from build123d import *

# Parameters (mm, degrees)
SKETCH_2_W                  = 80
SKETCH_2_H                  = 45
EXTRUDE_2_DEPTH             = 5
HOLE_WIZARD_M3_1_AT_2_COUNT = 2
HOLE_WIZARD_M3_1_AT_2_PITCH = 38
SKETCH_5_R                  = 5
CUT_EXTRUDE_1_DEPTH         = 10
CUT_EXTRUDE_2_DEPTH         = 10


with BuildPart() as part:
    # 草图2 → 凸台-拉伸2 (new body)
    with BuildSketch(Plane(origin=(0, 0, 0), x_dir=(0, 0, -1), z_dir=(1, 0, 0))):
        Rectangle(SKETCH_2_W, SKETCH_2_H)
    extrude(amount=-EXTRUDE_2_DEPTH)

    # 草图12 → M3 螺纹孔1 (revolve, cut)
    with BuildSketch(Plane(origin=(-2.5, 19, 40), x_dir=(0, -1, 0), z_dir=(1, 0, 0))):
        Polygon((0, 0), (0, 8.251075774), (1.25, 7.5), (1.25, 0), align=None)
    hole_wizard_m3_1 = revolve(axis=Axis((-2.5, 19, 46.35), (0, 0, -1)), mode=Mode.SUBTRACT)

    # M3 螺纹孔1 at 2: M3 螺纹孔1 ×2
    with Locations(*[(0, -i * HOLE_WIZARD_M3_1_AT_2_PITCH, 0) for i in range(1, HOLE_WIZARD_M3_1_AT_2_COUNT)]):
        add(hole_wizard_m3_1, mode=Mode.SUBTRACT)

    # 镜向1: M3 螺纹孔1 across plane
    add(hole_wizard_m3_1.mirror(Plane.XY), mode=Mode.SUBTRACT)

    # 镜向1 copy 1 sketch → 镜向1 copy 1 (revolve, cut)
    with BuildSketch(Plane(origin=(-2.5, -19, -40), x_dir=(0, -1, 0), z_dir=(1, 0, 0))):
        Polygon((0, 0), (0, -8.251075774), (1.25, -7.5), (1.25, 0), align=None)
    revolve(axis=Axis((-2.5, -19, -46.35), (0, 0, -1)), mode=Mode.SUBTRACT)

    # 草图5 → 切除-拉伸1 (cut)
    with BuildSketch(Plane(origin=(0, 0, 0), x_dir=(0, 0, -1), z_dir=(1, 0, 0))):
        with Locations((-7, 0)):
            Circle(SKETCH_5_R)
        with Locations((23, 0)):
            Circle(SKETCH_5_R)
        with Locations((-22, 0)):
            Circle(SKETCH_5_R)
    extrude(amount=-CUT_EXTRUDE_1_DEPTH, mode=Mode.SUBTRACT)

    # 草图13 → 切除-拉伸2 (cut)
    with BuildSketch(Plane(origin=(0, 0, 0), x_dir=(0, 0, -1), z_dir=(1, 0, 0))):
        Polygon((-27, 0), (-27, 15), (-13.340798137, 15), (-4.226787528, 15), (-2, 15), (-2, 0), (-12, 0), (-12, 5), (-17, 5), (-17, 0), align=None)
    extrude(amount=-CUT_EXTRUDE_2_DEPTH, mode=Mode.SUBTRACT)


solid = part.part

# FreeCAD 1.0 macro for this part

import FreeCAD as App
import Part
import Sketcher
from FreeCAD import Vector
Q = App.Units.Quantity

doc = App.newDocument("Part")
params = doc.addObject("Spreadsheet::Sheet", "Params")
for row, (alias, value) in enumerate([
    ("sketch1_width", "45 mm"),
    ("sketch1_height", "80 mm"),
    ("pad1_length", "5 mm"),
    ("sketch2_height", "7.5 mm"),
    ("sketch2_width", "1.25 mm"),
    ("groove_angle", "360 deg"),
    ("linearpattern_pitch", "38 mm"),
    ("sketch3_height", "7.5 mm"),
    ("sketch3_width", "1.25 mm"),
    ("groove2_angle", "360 deg"),
    ("sketch4_diameter", "10 mm"),
    ("pocket1_length", "10 mm"),
    ("sketch5_width", "15 mm"),
    ("sketch5_width2", "5 mm"),
    ("sketch5_height", "10 mm"),
    ("pocket2_length", "10 mm"),
], start=1):
    params.set(f"A{row}", alias)
    params.set(f"B{row}", "=" + value)
    params.setAlias(f"B{row}", alias)

body = doc.addObject("PartDesign::Body", "Body")

# Sketch on YZ plane
sketch1 = body.newObject("Sketcher::SketchObject", "Sketch")
sketch1.AttachmentSupport = (doc.getObject("YZ_Plane"), [""])
sketch1.MapMode = "FlatFace"
sketch1.addGeometry(Part.LineSegment(Vector(22, 40, 0), Vector(-22, 40, 0)), False)
sketch1.addGeometry(Part.LineSegment(Vector(-22, 40, 0), Vector(-22, -40, 0)), False)
sketch1.addGeometry(Part.LineSegment(Vector(-22, -40, 0), Vector(22, -40, 0)), False)
sketch1.addGeometry(Part.LineSegment(Vector(22, -40, 0), Vector(22, 40, 0)), False)
sketch1.addConstraint(Sketcher.Constraint("Coincident", 0, 2, 1, 1))
sketch1.addConstraint(Sketcher.Constraint("Coincident", 1, 2, 2, 1))
sketch1.addConstraint(Sketcher.Constraint("Coincident", 2, 2, 3, 1))
sketch1.addConstraint(Sketcher.Constraint("Coincident", 3, 2, 0, 1))
sketch1.addConstraint(Sketcher.Constraint("Horizontal", 0))
sketch1.addConstraint(Sketcher.Constraint("Vertical", 1))
sketch1.addConstraint(Sketcher.Constraint("Horizontal", 2))
sketch1.addConstraint(Sketcher.Constraint("Vertical", 3))
sketch1.addConstraint(Sketcher.Constraint("Symmetric", 0, 2, 2, 2, -1, 1))
sketch1.addConstraint(Sketcher.Constraint("DistanceX", 0, 2, 0, 1, 45.0))
sketch1.addConstraint(Sketcher.Constraint("DistanceY", 1, 2, 1, 1, 80.0))
sketch1.setExpression("Constraints[9]", "Params.sketch1_width")
sketch1.setExpression("Constraints[10]", "Params.sketch1_height")
pad1 = body.newObject("PartDesign::Pad", "Pad")
pad1.Profile = sketch1
pad1.setExpression("Length", "Params.pad1_length")
pad1.Reversed = True

# Sketch on YZ plane
sketch2 = body.newObject("Sketcher::SketchObject", "Sketch001")
sketch2.AttachmentSupport = (doc.getObject("YZ_Plane"), [""])
sketch2.MapMode = "FlatFace"
sketch2.AttachmentOffset = App.Placement(Vector(0, 0, -2.5), App.Rotation())
sketch2.addGeometry(Part.LineSegment(Vector(19, 31.7, 0), Vector(19, 40, 0)), False)
sketch2.addGeometry(Part.LineSegment(Vector(19, 40, 0), Vector(17.8, 40, 0)), False)
sketch2.addGeometry(Part.LineSegment(Vector(17.8, 40, 0), Vector(17.8, 32.5, 0)), False)
sketch2.addGeometry(Part.LineSegment(Vector(17.8, 32.5, 0), Vector(19, 31.7, 0)), False)
sketch2.addGeometry(Part.LineSegment(Vector(19, 40, 0), Vector(19, 31.7, 0)), True)  # axis
sketch2.addConstraint(Sketcher.Constraint("Coincident", 0, 2, 1, 1))
sketch2.addConstraint(Sketcher.Constraint("Coincident", 1, 2, 2, 1))
sketch2.addConstraint(Sketcher.Constraint("Coincident", 2, 2, 3, 1))
sketch2.addConstraint(Sketcher.Constraint("Coincident", 3, 2, 0, 1))
sketch2.addConstraint(Sketcher.Constraint("Vertical", 0))
sketch2.addConstraint(Sketcher.Constraint("Horizontal", 1))
sketch2.addConstraint(Sketcher.Constraint("Vertical", 2))
sketch2.addConstraint(Sketcher.Constraint("Vertical", 4))
sketch2.addConstraint(Sketcher.Constraint("Coincident", 4, 1, 0, 2))
sketch2.addConstraint(Sketcher.Constraint("Equal", 0, 4))
sketch2.addConstraint(Sketcher.Constraint("Angle", 3, Q("-31 deg")))
sketch2.addConstraint(Sketcher.Constraint("DistanceY", 2, 2, 2, 1, 7.5))
sketch2.addConstraint(Sketcher.Constraint("DistanceX", -1, 1, 0, 2, 19.0))
sketch2.addConstraint(Sketcher.Constraint("DistanceY", -1, 1, 0, 2, 40.0))
sketch2.addConstraint(Sketcher.Constraint("DistanceX", 1, 2, 1, 1, 1.25))
sketch2.setExpression("Constraints[11]", "Params.sketch2_height")
sketch2.setExpression("Constraints[14]", "Params.sketch2_width")
groove = body.newObject("PartDesign::Groove", "Groove")
groove.Profile = sketch2
groove.ReferenceAxis = (sketch2, ["Axis0"])
groove.setExpression("Angle", "Params.groove_angle")
doc.recompute()

linearpattern = body.newObject("PartDesign::LinearPattern", "LinearPattern")
linearpattern.Originals = [groove]
linearpattern.Direction = (doc.getObject("Y_Axis"), [""])
linearpattern.Mode = "offset"
linearpattern.setExpression("Offset", "Params.linearpattern_pitch")
linearpattern.Occurrences = 2
linearpattern.Reversed = True
body.Tip = linearpattern
doc.recompute()

mirrored = body.newObject("PartDesign::Mirrored", "Mirrored")
mirrored.Originals = [groove]
mirrored.MirrorPlane = (doc.getObject("XY_Plane"), [""])
body.Tip = mirrored

# Sketch on YZ plane
sketch3 = body.newObject("Sketcher::SketchObject", "Sketch002")
sketch3.AttachmentSupport = (doc.getObject("YZ_Plane"), [""])
sketch3.MapMode = "FlatFace"
sketch3.AttachmentOffset = App.Placement(Vector(0, 0, -2.5), App.Rotation())
sketch3.addGeometry(Part.LineSegment(Vector(-19, -40, 0), Vector(-19, -31.7, 0)), False)
sketch3.addGeometry(Part.LineSegment(Vector(-19, -31.7, 0), Vector(-20.2, -32.5, 0)), False)
sketch3.addGeometry(Part.LineSegment(Vector(-20.2, -32.5, 0), Vector(-20.2, -40, 0)), False)
sketch3.addGeometry(Part.LineSegment(Vector(-20.2, -40, 0), Vector(-19, -40, 0)), False)
sketch3.addGeometry(Part.LineSegment(Vector(-19, -31.7, 0), Vector(-19, -40, 0)), True)  # axis
sketch3.addConstraint(Sketcher.Constraint("Coincident", 0, 2, 1, 1))
sketch3.addConstraint(Sketcher.Constraint("Coincident", 1, 2, 2, 1))
sketch3.addConstraint(Sketcher.Constraint("Coincident", 2, 2, 3, 1))
sketch3.addConstraint(Sketcher.Constraint("Coincident", 3, 2, 0, 1))
sketch3.addConstraint(Sketcher.Constraint("Vertical", 0))
sketch3.addConstraint(Sketcher.Constraint("Vertical", 2))
sketch3.addConstraint(Sketcher.Constraint("Horizontal", 3))
sketch3.addConstraint(Sketcher.Constraint("Vertical", 4))
sketch3.addConstraint(Sketcher.Constraint("Coincident", 4, 1, 0, 2))
sketch3.addConstraint(Sketcher.Constraint("Horizontal", 2, 2, 4, 2))
sketch3.addConstraint(Sketcher.Constraint("Angle", 1, Q("-149 deg")))
sketch3.addConstraint(Sketcher.Constraint("DistanceY", 2, 2, 2, 1, 7.5))
sketch3.addConstraint(Sketcher.Constraint("DistanceX", 0, 2, -1, 1, 19.0))
sketch3.addConstraint(Sketcher.Constraint("DistanceY", 2, 2, -1, 1, 40.0))
sketch3.addConstraint(Sketcher.Constraint("DistanceX", 3, 1, 3, 2, 1.25))
sketch3.setExpression("Constraints[11]", "Params.sketch3_height")
sketch3.setExpression("Constraints[14]", "Params.sketch3_width")
groove2 = body.newObject("PartDesign::Groove", "Groove001")
groove2.Profile = sketch3
groove2.ReferenceAxis = (sketch3, ["Axis0"])
groove2.setExpression("Angle", "Params.groove2_angle")

# Sketch on YZ plane
sketch4 = body.newObject("Sketcher::SketchObject", "Sketch003")
sketch4.AttachmentSupport = (doc.getObject("YZ_Plane"), [""])
sketch4.MapMode = "FlatFace"
sketch4.addGeometry(Part.Circle(Vector(0, 7, 0), Vector(0, 0, 1), 5), False)
sketch4.addGeometry(Part.Circle(Vector(0, -23, 0), Vector(0, 0, 1), 5), False)
sketch4.addGeometry(Part.Circle(Vector(0, 22, 0), Vector(0, 0, 1), 5), False)
sketch4.addConstraint(Sketcher.Constraint("Equal", 0, 1))
sketch4.addConstraint(Sketcher.Constraint("Equal", 1, 2))
sketch4.addConstraint(Sketcher.Constraint("PointOnObject", 0, 3, -2))
sketch4.addConstraint(Sketcher.Constraint("PointOnObject", 1, 3, -2))
sketch4.addConstraint(Sketcher.Constraint("PointOnObject", 2, 3, -2))
sketch4.addConstraint(Sketcher.Constraint("Diameter", 0, 10.0))
sketch4.addConstraint(Sketcher.Constraint("DistanceY", -1, 1, 0, 3, 7.0))
sketch4.addConstraint(Sketcher.Constraint("DistanceY", 1, 3, -1, 1, 23.0))
sketch4.addConstraint(Sketcher.Constraint("DistanceY", -1, 1, 2, 3, 22.0))
sketch4.setExpression("Constraints[5]", "Params.sketch4_diameter")
pocket1 = body.newObject("PartDesign::Pocket", "Pocket")
pocket1.Profile = sketch4
pocket1.setExpression("Length", "Params.pocket1_length")

# Sketch on YZ plane
sketch5 = body.newObject("Sketcher::SketchObject", "Sketch004")
sketch5.AttachmentSupport = (doc.getObject("YZ_Plane"), [""])
sketch5.MapMode = "FlatFace"
sketch5.addGeometry(Part.LineSegment(Vector(15, 27, 0), Vector(0, 27, 0)), False)
sketch5.addGeometry(Part.LineSegment(Vector(0, 27, 0), Vector(0, 17, 0)), False)
sketch5.addGeometry(Part.LineSegment(Vector(0, 17, 0), Vector(5, 17, 0)), False)
sketch5.addGeometry(Part.LineSegment(Vector(5, 17, 0), Vector(5, 12, 0)), False)
sketch5.addGeometry(Part.LineSegment(Vector(5, 12, 0), Vector(0, 12, 0)), False)
sketch5.addGeometry(Part.LineSegment(Vector(0, 12, 0), Vector(0, 2, 0)), False)
sketch5.addGeometry(Part.LineSegment(Vector(0, 2, 0), Vector(15, 2, 0)), False)
sketch5.addGeometry(Part.LineSegment(Vector(15, 2, 0), Vector(15, 27, 0)), False)
sketch5.addConstraint(Sketcher.Constraint("Coincident", 0, 2, 1, 1))
sketch5.addConstraint(Sketcher.Constraint("Coincident", 1, 2, 2, 1))
sketch5.addConstraint(Sketcher.Constraint("Coincident", 2, 2, 3, 1))
sketch5.addConstraint(Sketcher.Constraint("Coincident", 3, 2, 4, 1))
sketch5.addConstraint(Sketcher.Constraint("Coincident", 4, 2, 5, 1))
sketch5.addConstraint(Sketcher.Constraint("Coincident", 5, 2, 6, 1))
sketch5.addConstraint(Sketcher.Constraint("Coincident", 6, 2, 7, 1))
sketch5.addConstraint(Sketcher.Constraint("Coincident", 7, 2, 0, 1))
sketch5.addConstraint(Sketcher.Constraint("Horizontal", 0))
sketch5.addConstraint(Sketcher.Constraint("Vertical", 1))
sketch5.addConstraint(Sketcher.Constraint("Horizontal", 2))
sketch5.addConstraint(Sketcher.Constraint("Vertical", 3))
sketch5.addConstraint(Sketcher.Constraint("Horizontal", 4))
sketch5.addConstraint(Sketcher.Constraint("Vertical", 5))
sketch5.addConstraint(Sketcher.Constraint("Horizontal", 6))
sketch5.addConstraint(Sketcher.Constraint("Vertical", 7))
sketch5.addConstraint(Sketcher.Constraint("PointOnObject", 0, 2, -2))
sketch5.addConstraint(Sketcher.Constraint("PointOnObject", 4, 2, -2))
sketch5.addConstraint(Sketcher.Constraint("Equal", 4, 3))
sketch5.addConstraint(Sketcher.Constraint("Equal", 1, 5))
sketch5.addConstraint(Sketcher.Constraint("DistanceX", 0, 2, 0, 1, 15.0))
sketch5.addConstraint(Sketcher.Constraint("DistanceX", 2, 1, 2, 2, 5.0))
sketch5.addConstraint(Sketcher.Constraint("DistanceY", 1, 2, 1, 1, 10.0))
sketch5.addConstraint(Sketcher.Constraint("DistanceY", -1, 1, 0, 2, 27.0))
sketch5.setExpression("Constraints[20]", "Params.sketch5_width")
sketch5.setExpression("Constraints[21]", "Params.sketch5_width2")
sketch5.setExpression("Constraints[22]", "Params.sketch5_height")
pocket2 = body.newObject("PartDesign::Pocket", "Pocket001")
pocket2.Profile = sketch5
pocket2.setExpression("Length", "Params.pocket2_length")

doc.recompute()
